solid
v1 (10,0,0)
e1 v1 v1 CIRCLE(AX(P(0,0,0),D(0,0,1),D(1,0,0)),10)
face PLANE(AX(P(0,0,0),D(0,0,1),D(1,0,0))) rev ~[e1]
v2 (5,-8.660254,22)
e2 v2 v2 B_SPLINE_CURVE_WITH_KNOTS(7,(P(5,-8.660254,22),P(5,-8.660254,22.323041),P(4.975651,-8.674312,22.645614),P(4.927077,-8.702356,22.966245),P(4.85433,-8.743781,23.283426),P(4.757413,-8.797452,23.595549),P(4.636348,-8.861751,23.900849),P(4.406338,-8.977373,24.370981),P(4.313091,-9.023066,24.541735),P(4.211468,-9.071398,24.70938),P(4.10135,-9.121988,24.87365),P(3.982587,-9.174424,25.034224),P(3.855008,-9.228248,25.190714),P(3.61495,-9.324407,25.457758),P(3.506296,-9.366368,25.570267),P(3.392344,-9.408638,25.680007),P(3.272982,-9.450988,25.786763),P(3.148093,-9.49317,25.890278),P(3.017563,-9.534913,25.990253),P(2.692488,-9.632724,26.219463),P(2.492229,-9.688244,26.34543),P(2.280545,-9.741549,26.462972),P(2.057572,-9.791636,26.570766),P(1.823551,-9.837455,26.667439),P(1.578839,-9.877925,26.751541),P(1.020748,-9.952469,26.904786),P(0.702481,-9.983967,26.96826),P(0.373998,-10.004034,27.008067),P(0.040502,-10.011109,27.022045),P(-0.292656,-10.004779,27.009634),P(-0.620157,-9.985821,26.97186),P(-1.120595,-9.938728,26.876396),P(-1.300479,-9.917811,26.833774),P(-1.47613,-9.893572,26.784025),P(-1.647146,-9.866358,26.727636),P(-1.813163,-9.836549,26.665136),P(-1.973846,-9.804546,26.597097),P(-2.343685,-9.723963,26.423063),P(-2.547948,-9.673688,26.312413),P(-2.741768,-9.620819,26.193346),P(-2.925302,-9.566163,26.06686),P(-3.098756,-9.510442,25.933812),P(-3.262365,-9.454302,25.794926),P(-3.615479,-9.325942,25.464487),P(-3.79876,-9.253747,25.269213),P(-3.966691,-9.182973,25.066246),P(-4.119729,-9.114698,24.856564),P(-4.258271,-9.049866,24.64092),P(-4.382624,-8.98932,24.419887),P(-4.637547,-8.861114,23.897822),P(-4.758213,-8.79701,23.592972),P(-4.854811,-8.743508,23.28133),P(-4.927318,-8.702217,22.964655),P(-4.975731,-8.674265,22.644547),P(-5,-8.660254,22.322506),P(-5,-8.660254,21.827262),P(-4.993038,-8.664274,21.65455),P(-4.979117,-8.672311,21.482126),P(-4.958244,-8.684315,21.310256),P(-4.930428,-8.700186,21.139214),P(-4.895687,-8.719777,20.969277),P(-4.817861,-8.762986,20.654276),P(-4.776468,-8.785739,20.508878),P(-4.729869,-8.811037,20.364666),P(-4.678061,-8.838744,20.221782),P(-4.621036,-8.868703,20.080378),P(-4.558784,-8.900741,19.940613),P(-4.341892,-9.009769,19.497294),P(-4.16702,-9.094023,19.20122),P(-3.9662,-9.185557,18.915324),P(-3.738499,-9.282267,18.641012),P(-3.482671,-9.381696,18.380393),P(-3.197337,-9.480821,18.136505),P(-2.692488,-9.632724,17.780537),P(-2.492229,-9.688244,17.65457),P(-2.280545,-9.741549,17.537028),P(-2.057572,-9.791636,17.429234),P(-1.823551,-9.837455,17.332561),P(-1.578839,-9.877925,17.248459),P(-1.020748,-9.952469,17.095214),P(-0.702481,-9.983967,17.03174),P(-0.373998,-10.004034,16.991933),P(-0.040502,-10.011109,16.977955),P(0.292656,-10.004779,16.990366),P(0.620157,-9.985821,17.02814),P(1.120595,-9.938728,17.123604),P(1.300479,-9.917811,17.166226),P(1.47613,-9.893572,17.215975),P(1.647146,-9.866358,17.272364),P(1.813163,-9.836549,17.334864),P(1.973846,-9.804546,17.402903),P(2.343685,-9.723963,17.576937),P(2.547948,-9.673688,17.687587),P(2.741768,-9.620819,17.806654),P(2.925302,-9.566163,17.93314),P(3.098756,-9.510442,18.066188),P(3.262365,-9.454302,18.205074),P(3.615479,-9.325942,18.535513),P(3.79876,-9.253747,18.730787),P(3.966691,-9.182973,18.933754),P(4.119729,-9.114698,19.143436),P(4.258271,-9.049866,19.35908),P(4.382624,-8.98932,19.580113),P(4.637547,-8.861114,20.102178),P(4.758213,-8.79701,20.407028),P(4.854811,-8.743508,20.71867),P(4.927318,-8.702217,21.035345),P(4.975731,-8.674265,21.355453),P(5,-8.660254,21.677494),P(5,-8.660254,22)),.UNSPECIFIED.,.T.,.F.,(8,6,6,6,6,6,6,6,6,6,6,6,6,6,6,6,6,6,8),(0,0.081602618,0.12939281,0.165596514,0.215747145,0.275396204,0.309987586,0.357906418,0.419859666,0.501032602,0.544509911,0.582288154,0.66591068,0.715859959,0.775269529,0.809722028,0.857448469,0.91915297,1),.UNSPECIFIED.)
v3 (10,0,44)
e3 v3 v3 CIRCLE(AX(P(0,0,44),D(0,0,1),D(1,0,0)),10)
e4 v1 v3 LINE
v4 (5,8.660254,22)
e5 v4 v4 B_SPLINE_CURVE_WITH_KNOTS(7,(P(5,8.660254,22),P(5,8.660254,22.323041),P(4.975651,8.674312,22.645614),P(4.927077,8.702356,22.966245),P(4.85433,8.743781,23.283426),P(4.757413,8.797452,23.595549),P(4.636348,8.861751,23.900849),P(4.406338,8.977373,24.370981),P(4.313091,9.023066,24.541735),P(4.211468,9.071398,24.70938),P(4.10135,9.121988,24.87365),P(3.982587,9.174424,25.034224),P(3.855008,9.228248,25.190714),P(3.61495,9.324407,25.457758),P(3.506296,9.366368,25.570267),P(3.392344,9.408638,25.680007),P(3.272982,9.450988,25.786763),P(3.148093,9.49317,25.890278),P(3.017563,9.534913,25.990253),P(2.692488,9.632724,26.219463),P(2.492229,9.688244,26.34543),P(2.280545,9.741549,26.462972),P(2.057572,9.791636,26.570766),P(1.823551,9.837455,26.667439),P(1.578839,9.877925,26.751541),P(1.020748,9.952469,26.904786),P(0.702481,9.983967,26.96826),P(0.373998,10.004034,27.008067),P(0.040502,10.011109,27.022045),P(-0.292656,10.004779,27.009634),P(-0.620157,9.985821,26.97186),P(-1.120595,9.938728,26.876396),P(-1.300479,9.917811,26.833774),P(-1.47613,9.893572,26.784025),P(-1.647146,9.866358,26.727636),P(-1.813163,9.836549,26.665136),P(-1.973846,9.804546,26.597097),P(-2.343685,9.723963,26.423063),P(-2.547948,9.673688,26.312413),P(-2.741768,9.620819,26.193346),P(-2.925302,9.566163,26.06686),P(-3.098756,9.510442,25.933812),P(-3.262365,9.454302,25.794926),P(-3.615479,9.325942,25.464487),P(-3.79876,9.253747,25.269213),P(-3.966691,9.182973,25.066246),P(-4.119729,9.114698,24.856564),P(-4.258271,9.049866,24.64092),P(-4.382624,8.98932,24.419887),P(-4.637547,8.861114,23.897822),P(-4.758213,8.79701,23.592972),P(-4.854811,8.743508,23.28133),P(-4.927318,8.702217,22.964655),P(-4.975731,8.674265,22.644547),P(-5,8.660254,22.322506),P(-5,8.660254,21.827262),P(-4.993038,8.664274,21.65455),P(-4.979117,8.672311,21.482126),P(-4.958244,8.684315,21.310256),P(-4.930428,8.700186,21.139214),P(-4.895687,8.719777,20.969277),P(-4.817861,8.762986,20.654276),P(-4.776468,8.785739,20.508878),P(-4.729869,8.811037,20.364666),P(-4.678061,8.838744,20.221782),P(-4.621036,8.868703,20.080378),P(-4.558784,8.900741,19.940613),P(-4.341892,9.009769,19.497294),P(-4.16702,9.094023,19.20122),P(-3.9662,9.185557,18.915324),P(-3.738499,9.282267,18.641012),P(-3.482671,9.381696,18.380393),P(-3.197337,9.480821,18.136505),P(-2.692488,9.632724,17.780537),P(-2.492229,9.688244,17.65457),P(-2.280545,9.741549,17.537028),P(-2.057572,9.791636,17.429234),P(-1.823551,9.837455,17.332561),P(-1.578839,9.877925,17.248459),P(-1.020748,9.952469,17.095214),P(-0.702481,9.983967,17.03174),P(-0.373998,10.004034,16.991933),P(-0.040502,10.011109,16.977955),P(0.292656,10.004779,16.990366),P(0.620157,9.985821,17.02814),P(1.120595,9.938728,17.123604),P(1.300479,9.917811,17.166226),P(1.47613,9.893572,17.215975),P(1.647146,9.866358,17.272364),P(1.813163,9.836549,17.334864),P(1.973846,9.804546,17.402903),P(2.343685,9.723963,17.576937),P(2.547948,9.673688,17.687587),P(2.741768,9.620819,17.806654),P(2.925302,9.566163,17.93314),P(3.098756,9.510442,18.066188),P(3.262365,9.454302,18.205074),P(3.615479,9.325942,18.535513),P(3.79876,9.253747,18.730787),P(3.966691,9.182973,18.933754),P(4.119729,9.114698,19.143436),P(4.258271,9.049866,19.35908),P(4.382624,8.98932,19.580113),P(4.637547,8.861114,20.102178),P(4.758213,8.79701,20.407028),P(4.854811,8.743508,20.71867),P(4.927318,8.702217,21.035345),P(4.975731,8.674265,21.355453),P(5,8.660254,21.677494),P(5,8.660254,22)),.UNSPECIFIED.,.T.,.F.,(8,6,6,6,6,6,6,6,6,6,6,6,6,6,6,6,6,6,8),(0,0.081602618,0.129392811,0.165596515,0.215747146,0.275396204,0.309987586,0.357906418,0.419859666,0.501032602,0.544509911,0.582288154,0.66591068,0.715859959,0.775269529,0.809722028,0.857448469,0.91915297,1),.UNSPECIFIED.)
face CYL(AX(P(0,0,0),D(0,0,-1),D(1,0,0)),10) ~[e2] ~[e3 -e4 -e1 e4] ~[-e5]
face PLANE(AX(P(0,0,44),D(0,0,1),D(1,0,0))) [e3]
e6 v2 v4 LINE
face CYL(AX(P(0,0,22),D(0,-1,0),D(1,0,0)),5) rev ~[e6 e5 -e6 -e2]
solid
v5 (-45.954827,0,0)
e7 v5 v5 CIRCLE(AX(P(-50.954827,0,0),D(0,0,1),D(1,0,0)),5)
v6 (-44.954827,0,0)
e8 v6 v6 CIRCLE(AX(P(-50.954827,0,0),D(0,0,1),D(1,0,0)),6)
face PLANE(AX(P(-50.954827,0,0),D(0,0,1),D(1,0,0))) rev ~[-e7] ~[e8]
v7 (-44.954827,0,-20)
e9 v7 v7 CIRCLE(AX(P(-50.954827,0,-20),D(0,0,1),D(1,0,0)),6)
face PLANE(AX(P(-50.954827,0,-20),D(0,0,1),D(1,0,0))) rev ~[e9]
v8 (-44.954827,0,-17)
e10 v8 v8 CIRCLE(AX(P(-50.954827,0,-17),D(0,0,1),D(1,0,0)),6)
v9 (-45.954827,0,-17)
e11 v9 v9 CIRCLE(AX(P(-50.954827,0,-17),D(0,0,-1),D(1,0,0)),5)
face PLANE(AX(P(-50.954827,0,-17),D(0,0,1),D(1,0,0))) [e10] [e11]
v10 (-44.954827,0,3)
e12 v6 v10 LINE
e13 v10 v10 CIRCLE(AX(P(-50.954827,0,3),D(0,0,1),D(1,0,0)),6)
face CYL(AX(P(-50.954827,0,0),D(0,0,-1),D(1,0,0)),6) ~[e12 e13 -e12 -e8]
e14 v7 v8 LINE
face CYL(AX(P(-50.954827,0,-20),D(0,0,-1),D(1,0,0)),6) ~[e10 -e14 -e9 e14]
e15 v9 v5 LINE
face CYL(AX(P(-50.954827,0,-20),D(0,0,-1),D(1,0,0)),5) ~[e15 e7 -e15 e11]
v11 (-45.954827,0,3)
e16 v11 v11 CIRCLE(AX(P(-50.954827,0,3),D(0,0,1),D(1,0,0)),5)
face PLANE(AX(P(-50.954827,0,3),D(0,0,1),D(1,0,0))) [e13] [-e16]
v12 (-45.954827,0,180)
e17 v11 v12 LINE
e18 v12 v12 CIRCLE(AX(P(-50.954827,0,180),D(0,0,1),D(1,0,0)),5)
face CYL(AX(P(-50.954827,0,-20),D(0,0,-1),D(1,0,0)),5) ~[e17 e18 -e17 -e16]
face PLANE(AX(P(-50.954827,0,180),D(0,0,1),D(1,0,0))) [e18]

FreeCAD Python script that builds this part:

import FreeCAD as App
import Part
import Sketcher
from FreeCAD import Vector

doc = App.newDocument("Part")
params = doc.addObject("Spreadsheet::Sheet", "Params")
for row, (alias, value) in enumerate([
    ("sketch1_diameter", "20 mm"),
    ("pad1_length", "44 mm"),
    ("sketch2_diameter", "10 mm"),
    ("sketch3_diameter", "12 mm"),
    ("pad2_length", "3 mm"),
    ("sketch4_diameter", "10 mm"),
    ("pad3_length", "200 mm"),
    ("sketch5_diameter", "12 mm"),
    ("sketch5_diameter2", "10 mm"),
    ("pad4_length", "3 mm"),
], start=1):
    params.set(f"A{row}", alias)
    params.set(f"B{row}", "=" + value)
    params.setAlias(f"B{row}", alias)

body = doc.addObject("PartDesign::Body", "Body")

sketch1 = doc.addObject("Sketcher::SketchObject", "Sketch")
body.addObject(sketch1)
sketch1.AttachmentSupport = (doc.XY_Plane, [""])
sketch1.MapMode = "FlatFace"
sketch1.addGeometry(Part.Circle(Vector(0, 0, 0), Vector(0, 0, 1), 10), False)
sketch1.addConstraint(Sketcher.Constraint("Coincident", 0, 3, -1, 1))
sketch1.addConstraint(Sketcher.Constraint("Diameter", 0, 20.0))
sketch1.setExpression("Constraints[1]", "Params.sketch1_diameter")
pad1 = doc.addObject("PartDesign::Pad", "Pad")
body.addObject(pad1)
pad1.Profile = sketch1
pad1.setExpression("Length", "Params.pad1_length")

sketch2 = doc.addObject("Sketcher::SketchObject", "Sketch001")
body.addObject(sketch2)
sketch2.AttachmentSupport = (doc.XZ_Plane, [""])
sketch2.MapMode = "FlatFace"
sketch2.addGeometry(Part.Circle(Vector(0, 22, 0), Vector(0, 0, 1), 5), False)
sketch2.addConstraint(Sketcher.Constraint("PointOnObject", 0, 3, -2))
sketch2.addConstraint(Sketcher.Constraint("Diameter", 0, 10.0))
sketch2.addConstraint(Sketcher.Constraint("DistanceY", -1, 1, 0, 3, 22.0))
sketch2.setExpression("Constraints[1]", "Params.sketch2_diameter")
pocket1 = doc.addObject("PartDesign::Pocket", "Pocket")
body.addObject(pocket1)
pocket1.Profile = sketch2
pocket1.Type = "ThroughAll"
pocket1.Midplane = True
body2 = doc.addObject("PartDesign::Body", "Body001")

sketch3 = doc.addObject("Sketcher::SketchObject", "Sketch002")
body2.addObject(sketch3)
sketch3.AttachmentSupport = (doc.getObject("XY_Plane001"), [""])
sketch3.MapMode = "FlatFace"
sketch3.addGeometry(Part.Circle(Vector(-51, 0, 0), Vector(0, 0, 1), 6), False)
sketch3.addConstraint(Sketcher.Constraint("PointOnObject", 0, 3, -1))
sketch3.addConstraint(Sketcher.Constraint("Diameter", 0, 12.0))
sketch3.addConstraint(Sketcher.Constraint("DistanceX", 0, 3, -1, 1, 50.954827))
sketch3.setExpression("Constraints[1]", "Params.sketch3_diameter")
pad2 = doc.addObject("PartDesign::Pad", "Pad001")
body2.addObject(pad2)
pad2.Profile = sketch3
pad2.setExpression("Length", "Params.pad2_length")

sketch4 = doc.addObject("Sketcher::SketchObject", "Sketch003")
body2.addObject(sketch4)
sketch4.AttachmentSupport = (doc.getObject("XY_Plane001"), [""])
sketch4.MapMode = "FlatFace"
sketch4.addGeometry(Part.Circle(Vector(-51, 0, 0), Vector(0, 0, 1), 5), False)
sketch4.addConstraint(Sketcher.Constraint("PointOnObject", 0, 3, -1))
sketch4.addConstraint(Sketcher.Constraint("Diameter", 0, 10.0))
sketch4.addConstraint(Sketcher.Constraint("DistanceX", 0, 3, -1, 1, 50.954827))
sketch4.setExpression("Constraints[1]", "Params.sketch4_diameter")
pad3 = doc.addObject("PartDesign::Pad", "Pad002")
body2.addObject(pad3)
pad3.Profile = sketch4
pad3.setExpression("Length", "Params.pad3_length")
body3 = doc.addObject("PartDesign::Body", "Body002")
doc.recompute()

body2.Placement = App.Placement(Vector(0, 0, -20), App.Rotation(Vector(0, 0, 1), 0))
boolean = doc.addObject("PartDesign::Boolean", "Boolean")
body3.addObject(boolean)
boolean.Type = "Fuse"
boolean.addObjects([body2])

sketch5 = doc.addObject("Sketcher::SketchObject", "Sketch004")
body3.addObject(sketch5)
sketch5.AttachmentSupport = (doc.getObject("XY_Plane002"), [""])
sketch5.MapMode = "FlatFace"
sketch5.addGeometry(Part.Circle(Vector(-51, 0, 0), Vector(0, 0, 1), 6), False)
sketch5.addGeometry(Part.Circle(Vector(-51, 0, 0), Vector(0, 0, 1), 5), False)
sketch5.addConstraint(Sketcher.Constraint("Coincident", 1, 3, 0, 3))
sketch5.addConstraint(Sketcher.Constraint("PointOnObject", 0, 3, -1))
sketch5.addConstraint(Sketcher.Constraint("Diameter", 0, 12.0))
sketch5.addConstraint(Sketcher.Constraint("Diameter", 1, 10.0))
sketch5.addConstraint(Sketcher.Constraint("DistanceX", 0, 3, -1, 1, 50.954827))
sketch5.setExpression("Constraints[2]", "Params.sketch5_diameter")
sketch5.setExpression("Constraints[3]", "Params.sketch5_diameter2")
pad4 = doc.addObject("PartDesign::Pad", "Pad003")
body3.addObject(pad4)
pad4.Profile = sketch5
pad4.setExpression("Length", "Params.pad4_length")

doc.recompute()
